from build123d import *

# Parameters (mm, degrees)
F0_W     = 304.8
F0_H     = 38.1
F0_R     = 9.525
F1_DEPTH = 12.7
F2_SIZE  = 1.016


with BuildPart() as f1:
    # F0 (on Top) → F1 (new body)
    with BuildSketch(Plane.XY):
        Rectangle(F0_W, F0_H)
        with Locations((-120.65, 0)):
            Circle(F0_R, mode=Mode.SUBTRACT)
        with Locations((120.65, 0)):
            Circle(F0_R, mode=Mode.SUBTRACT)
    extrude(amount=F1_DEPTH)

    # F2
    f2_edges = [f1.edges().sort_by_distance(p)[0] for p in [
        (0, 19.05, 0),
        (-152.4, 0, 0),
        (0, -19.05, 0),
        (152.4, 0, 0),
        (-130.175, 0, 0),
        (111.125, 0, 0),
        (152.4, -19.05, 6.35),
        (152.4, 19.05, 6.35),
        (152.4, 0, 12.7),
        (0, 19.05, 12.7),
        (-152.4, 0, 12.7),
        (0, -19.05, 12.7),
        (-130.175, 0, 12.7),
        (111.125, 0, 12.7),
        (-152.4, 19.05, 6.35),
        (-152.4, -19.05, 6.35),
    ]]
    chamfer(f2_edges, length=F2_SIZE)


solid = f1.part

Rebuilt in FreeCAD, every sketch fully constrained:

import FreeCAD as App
import Part
import Sketcher

V = App.Vector
Q = App.Units.Quantity

doc = App.newDocument("Part")
body = doc.addObject("PartDesign::Body", "Body")

# Sketch on XY plane
sketch1 = body.newObject("Sketcher::SketchObject", "Sketch")
sketch1.AttachmentSupport = (doc.getObject("XY_Plane"), [""])
sketch1.MapMode = "FlatFace"
sketch1.addGeometry([
    Part.LineSegment(V(-152, 19, 0), V(-152, -19, 0)),  # 0
    Part.LineSegment(V(-152, -19, 0), V(152, -19, 0)),  # 1
    Part.LineSegment(V(152, -19, 0), V(152, 19, 0)),  # 2
    Part.LineSegment(V(152, 19, 0), V(-152, 19, 0)),  # 3
    Part.Circle(V(-121, 0, 0), V(0, 0, 1), 10),  # 4
    Part.Circle(V(121, 0, 0), V(0, 0, 1), 10),  # 5
], False)
sketch1.addConstraint([
    Sketcher.Constraint("Coincident", 0, 2, 1, 1),
    Sketcher.Constraint("Coincident", 1, 2, 2, 1),
    Sketcher.Constraint("Coincident", 2, 2, 3, 1),
    Sketcher.Constraint("Coincident", 3, 2, 0, 1),
    Sketcher.Constraint("Vertical", 0),
    Sketcher.Constraint("Horizontal", 1),
    Sketcher.Constraint("Vertical", 2),
    Sketcher.Constraint("Horizontal", 3),
    Sketcher.Constraint("Equal", 4, 5),
    Sketcher.Constraint("Symmetric", 4, 3, 5, 3, -1, 1),
    Sketcher.Constraint("Symmetric", 0, 2, 2, 2, -1, 1),
    Sketcher.Constraint("PointOnObject", 4, 3, -1),
    Sketcher.Constraint("Diameter", 4, Q("0.75 in")),
    Sketcher.Constraint("DistanceX", 1, 1, 1, 2, Q("12 in")),
    Sketcher.Constraint("DistanceY", 0, 2, 0, 1, Q("1.5 in")),
    Sketcher.Constraint("DistanceX", 4, 3, 5, 3, Q("9.5 in")),
])
pad1 = body.newObject("PartDesign::Pad", "Pad")
pad1.Profile = sketch1
pad1.Length = Q("0.5 in")
doc.recompute()

chamfer = body.newObject("PartDesign::Chamfer", "Chamfer")
chamfer.Base = (pad1, ["Edge1"])
chamfer.UseAllEdges = True
chamfer.Size = Q("0.04 in")

doc.recompute()
